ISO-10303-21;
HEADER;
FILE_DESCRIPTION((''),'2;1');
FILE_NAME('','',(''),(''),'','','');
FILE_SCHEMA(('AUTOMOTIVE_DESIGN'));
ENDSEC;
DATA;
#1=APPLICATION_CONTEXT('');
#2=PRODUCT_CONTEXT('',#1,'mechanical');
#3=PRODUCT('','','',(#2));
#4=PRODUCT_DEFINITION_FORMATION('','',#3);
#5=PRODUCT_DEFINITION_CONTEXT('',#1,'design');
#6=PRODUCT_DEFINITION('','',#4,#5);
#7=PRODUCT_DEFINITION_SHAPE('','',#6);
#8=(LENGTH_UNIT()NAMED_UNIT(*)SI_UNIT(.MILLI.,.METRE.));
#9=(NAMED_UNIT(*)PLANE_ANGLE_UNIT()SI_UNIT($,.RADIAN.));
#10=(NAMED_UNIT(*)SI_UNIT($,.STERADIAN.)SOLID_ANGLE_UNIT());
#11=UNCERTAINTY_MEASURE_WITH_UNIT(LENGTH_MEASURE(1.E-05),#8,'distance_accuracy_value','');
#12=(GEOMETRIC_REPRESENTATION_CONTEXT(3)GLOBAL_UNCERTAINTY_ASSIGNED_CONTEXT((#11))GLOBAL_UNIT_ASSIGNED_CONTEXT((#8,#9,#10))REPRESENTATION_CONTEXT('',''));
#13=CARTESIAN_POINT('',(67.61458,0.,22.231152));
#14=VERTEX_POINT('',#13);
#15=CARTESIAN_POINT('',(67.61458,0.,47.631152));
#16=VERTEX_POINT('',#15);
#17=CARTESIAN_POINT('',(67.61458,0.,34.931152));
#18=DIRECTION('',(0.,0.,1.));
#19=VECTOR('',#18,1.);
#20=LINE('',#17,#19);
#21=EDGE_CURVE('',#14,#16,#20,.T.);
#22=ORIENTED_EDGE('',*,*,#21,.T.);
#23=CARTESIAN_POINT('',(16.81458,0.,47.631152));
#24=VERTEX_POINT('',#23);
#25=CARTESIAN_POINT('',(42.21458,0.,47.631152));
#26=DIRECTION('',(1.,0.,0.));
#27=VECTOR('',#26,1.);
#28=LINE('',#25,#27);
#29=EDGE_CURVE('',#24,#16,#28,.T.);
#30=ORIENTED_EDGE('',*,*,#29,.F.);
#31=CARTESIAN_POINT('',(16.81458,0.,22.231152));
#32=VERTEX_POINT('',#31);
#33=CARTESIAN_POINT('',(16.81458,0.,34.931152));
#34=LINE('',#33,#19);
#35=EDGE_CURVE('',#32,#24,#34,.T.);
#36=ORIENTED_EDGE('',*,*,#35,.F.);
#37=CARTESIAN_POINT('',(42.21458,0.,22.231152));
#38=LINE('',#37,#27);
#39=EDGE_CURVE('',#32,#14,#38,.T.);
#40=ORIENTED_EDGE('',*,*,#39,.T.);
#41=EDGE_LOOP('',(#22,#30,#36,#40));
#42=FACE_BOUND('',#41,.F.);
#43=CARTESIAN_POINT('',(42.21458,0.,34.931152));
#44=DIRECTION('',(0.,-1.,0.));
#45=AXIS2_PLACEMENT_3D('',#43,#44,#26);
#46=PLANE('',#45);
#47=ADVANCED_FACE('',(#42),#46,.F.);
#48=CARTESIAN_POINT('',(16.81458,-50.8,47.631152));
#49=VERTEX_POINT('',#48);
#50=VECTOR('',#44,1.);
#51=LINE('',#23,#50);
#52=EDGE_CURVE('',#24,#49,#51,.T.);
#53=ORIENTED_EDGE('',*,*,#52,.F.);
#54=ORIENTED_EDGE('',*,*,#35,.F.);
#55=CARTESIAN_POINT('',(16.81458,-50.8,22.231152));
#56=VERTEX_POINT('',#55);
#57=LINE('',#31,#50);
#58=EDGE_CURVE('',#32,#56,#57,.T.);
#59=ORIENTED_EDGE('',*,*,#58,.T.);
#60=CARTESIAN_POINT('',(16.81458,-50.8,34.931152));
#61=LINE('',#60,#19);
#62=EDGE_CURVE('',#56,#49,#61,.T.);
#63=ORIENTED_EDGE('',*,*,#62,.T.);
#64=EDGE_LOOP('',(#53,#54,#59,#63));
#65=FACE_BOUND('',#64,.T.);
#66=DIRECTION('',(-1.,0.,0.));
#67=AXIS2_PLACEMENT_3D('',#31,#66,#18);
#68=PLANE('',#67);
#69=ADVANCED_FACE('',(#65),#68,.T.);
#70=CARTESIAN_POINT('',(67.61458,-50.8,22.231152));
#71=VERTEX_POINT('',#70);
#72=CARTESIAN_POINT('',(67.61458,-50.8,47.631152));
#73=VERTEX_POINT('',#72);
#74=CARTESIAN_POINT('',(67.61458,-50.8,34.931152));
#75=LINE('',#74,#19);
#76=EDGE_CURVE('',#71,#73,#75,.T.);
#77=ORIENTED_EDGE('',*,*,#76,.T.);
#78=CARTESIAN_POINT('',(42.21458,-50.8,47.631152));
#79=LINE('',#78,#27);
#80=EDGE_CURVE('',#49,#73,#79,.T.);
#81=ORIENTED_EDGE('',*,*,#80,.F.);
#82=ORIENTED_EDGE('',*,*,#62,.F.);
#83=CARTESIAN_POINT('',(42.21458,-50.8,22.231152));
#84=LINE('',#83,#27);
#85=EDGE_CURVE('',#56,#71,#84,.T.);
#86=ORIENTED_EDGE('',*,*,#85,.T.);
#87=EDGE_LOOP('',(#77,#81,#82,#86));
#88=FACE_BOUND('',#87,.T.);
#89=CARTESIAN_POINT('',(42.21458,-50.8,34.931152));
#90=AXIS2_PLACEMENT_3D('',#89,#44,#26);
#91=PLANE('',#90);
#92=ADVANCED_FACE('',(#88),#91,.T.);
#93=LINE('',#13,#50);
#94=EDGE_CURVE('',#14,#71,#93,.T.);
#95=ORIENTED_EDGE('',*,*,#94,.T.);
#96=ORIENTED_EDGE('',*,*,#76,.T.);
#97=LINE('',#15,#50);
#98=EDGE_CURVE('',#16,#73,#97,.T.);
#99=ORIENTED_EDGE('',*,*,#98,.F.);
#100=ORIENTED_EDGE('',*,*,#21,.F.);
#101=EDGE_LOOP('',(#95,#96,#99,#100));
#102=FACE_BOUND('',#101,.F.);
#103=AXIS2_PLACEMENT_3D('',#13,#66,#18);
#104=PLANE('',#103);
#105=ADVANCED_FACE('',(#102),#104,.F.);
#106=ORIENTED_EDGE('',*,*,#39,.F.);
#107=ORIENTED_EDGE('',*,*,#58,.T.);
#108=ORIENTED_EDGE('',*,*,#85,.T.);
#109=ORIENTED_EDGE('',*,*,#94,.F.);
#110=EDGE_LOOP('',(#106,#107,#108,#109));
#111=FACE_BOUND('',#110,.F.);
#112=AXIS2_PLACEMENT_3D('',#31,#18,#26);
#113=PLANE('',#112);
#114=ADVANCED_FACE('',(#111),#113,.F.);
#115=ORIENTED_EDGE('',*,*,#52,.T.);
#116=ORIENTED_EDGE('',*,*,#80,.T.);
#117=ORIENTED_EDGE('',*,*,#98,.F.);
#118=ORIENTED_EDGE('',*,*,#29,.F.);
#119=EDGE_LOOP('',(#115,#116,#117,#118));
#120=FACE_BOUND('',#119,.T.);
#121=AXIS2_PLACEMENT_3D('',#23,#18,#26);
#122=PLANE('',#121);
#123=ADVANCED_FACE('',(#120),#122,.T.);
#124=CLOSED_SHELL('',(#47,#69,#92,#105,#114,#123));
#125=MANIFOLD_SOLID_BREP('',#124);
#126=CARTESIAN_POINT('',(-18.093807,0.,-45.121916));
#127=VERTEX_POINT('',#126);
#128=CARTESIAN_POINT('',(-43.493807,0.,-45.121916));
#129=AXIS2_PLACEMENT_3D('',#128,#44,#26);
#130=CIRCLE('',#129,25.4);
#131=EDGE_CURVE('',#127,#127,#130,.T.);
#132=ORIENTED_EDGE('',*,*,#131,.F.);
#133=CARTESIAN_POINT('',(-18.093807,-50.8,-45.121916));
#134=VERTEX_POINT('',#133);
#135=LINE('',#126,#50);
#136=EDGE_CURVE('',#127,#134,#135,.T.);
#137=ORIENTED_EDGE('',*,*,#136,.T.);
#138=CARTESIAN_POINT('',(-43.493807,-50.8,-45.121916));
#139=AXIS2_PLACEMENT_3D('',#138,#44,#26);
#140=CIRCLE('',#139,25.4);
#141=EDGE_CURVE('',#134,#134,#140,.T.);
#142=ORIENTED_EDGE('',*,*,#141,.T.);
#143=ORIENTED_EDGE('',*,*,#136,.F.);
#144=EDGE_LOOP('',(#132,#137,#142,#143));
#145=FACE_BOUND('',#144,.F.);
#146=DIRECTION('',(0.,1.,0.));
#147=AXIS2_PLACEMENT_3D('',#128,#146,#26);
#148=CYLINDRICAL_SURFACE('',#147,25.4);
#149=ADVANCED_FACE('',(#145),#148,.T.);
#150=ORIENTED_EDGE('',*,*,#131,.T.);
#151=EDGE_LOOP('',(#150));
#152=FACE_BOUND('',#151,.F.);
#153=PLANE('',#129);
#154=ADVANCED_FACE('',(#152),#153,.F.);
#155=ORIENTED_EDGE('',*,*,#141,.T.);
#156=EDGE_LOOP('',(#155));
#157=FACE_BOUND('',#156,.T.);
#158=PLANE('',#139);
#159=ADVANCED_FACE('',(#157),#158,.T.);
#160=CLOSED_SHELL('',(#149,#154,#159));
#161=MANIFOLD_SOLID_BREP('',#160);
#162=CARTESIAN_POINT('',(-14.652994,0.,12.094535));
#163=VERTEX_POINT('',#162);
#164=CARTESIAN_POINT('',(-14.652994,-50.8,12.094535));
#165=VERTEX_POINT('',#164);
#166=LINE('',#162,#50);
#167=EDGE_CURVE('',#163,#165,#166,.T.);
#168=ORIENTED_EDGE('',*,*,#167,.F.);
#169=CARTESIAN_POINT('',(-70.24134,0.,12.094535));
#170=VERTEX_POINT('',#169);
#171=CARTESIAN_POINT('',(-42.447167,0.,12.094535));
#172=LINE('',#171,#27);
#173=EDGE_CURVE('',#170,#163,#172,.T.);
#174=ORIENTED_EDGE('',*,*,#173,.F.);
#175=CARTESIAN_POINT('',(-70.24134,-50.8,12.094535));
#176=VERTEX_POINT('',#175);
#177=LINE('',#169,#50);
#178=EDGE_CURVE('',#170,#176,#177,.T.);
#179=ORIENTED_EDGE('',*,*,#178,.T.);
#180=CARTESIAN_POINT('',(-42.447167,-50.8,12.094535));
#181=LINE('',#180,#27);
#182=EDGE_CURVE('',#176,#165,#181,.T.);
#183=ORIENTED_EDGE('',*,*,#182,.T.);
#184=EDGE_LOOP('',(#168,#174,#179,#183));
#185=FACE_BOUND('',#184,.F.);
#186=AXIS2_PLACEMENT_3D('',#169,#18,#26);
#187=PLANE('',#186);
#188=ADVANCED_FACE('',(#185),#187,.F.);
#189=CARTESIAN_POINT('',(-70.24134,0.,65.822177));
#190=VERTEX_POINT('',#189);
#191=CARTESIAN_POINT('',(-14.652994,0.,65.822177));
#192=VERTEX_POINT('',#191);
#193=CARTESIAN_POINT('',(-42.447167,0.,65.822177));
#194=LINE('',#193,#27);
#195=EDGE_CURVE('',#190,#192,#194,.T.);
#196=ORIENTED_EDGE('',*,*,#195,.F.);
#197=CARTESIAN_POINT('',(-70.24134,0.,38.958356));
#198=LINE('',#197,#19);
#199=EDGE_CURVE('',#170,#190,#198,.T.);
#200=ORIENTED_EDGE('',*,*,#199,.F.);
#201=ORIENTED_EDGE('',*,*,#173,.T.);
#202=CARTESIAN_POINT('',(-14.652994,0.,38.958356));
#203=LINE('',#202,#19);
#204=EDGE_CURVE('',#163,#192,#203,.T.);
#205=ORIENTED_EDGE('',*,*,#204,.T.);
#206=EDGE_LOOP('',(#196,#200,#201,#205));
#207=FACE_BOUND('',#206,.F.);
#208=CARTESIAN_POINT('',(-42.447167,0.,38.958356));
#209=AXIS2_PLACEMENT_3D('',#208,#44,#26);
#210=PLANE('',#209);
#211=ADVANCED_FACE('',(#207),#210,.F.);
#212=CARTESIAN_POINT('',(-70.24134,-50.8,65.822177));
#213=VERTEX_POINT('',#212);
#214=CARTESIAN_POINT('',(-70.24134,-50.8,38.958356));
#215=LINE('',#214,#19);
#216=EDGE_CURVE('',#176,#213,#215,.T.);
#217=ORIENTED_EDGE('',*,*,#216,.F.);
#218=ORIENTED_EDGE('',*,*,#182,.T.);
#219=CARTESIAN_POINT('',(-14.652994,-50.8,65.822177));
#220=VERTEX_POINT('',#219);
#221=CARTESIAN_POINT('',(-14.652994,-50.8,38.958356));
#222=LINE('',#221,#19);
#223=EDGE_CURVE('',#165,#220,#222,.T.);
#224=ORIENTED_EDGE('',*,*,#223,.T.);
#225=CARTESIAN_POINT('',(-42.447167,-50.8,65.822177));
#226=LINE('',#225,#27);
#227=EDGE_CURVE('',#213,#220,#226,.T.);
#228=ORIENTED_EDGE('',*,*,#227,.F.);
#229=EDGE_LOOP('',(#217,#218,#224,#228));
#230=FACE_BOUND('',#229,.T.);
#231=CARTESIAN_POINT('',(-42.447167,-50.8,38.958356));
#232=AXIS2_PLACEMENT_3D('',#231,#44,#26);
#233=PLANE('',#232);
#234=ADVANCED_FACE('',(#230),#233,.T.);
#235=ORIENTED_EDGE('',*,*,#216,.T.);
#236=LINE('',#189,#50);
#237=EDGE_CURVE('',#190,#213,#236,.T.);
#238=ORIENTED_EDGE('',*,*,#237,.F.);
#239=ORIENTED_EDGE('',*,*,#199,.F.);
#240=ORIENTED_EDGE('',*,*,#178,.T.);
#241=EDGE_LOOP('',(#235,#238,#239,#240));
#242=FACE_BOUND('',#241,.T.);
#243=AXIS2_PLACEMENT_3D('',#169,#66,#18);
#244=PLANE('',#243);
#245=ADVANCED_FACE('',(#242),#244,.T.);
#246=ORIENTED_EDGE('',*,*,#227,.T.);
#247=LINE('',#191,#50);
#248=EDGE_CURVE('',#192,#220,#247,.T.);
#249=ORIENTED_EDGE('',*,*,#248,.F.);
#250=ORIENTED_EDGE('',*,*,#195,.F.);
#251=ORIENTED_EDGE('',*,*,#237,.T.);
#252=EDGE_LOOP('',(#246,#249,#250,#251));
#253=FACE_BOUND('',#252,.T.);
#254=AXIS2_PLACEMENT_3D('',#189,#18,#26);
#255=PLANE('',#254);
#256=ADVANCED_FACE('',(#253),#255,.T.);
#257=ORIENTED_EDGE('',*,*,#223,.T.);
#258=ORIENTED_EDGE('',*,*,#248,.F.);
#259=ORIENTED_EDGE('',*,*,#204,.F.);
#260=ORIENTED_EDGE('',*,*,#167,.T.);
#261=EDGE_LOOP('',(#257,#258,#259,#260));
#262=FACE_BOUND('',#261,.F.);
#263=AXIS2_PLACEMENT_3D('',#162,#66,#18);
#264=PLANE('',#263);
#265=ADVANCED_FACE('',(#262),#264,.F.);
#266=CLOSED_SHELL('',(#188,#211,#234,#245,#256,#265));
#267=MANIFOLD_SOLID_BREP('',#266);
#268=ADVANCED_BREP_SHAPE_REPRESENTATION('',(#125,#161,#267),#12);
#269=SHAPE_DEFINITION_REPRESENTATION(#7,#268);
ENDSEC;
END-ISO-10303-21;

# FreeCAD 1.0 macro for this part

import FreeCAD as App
import Part
import Sketcher
Q = App.Units.Quantity

doc = App.newDocument("Part")
body = doc.addObject("PartDesign::Body", "Body")

sketch1 = body.newObject("Sketcher::SketchObject", "Sketch")
sketch1.AttachmentSupport = (doc.getObject("XZ_Plane"), [""])
sketch1.MapMode = "FlatFace"
sketch1.addGeometry([
    Part.LineSegment(App.Vector(-70, 66, 0), App.Vector(-70, 12, 0)),
    Part.LineSegment(App.Vector(-70, 12, 0), App.Vector(-15, 12, 0)),
    Part.LineSegment(App.Vector(-15, 12, 0), App.Vector(-15, 66, 0)),
    Part.LineSegment(App.Vector(-15, 66, 0), App.Vector(-70, 66, 0)),
], False)
sketch1.addConstraint([
    Sketcher.Constraint("Coincident", 0, 2, 1, 1),
    Sketcher.Constraint("Coincident", 1, 2, 2, 1),
    Sketcher.Constraint("Coincident", 2, 2, 3, 1),
    Sketcher.Constraint("Coincident", 3, 2, 0, 1),
    Sketcher.Constraint("Vertical", 0),
    Sketcher.Constraint("Horizontal", 1),
    Sketcher.Constraint("Vertical", 2),
    Sketcher.Constraint("Horizontal", 3),
    Sketcher.Constraint("DistanceY", 0, 2, 0, 1, 53.727642),
    Sketcher.Constraint("DistanceX", 1, 1, 1, 2, 55.588346),
    Sketcher.Constraint("DistanceX", 0, 2, -1, 1, 70.24134),
    Sketcher.Constraint("DistanceY", -1, 1, 0, 2, 12.094535),
])
pad1 = body.newObject("PartDesign::Pad", "Pad")
pad1.Profile = sketch1
pad1.Length = Q("2 in")
body2 = doc.addObject("PartDesign::Body", "Body001")

sketch2 = body2.newObject("Sketcher::SketchObject", "Sketch001")
sketch2.AttachmentSupport = (doc.getObject("XZ_Plane001"), [""])
sketch2.MapMode = "FlatFace"
sketch2.addGeometry([
    Part.LineSegment(App.Vector(17, 48, 0), App.Vector(17, 22, 0)),
    Part.LineSegment(App.Vector(17, 22, 0), App.Vector(68, 22, 0)),
    Part.LineSegment(App.Vector(68, 22, 0), App.Vector(68, 48, 0)),
    Part.LineSegment(App.Vector(68, 48, 0), App.Vector(17, 48, 0)),
], False)
sketch2.addConstraint([
    Sketcher.Constraint("Coincident", 0, 2, 1, 1),
    Sketcher.Constraint("Coincident", 1, 2, 2, 1),
    Sketcher.Constraint("Coincident", 2, 2, 3, 1),
    Sketcher.Constraint("Coincident", 3, 2, 0, 1),
    Sketcher.Constraint("Vertical", 0),
    Sketcher.Constraint("Horizontal", 1),
    Sketcher.Constraint("Vertical", 2),
    Sketcher.Constraint("Horizontal", 3),
    Sketcher.Constraint("DistanceX", 1, 1, 1, 2, Q("2 in")),
    Sketcher.Constraint("DistanceY", 0, 2, 0, 1, Q("1 in")),
    Sketcher.Constraint("DistanceX", -1, 1, 0, 2, 16.81458),
    Sketcher.Constraint("DistanceY", -1, 1, 0, 2, 22.231152),
])
pad2 = body2.newObject("PartDesign::Pad", "Pad001")
pad2.Profile = sketch2
pad2.Length = Q("2 in")
body3 = doc.addObject("PartDesign::Body", "Body002")

sketch3 = body3.newObject("Sketcher::SketchObject", "Sketch002")
sketch3.AttachmentSupport = (doc.getObject("XZ_Plane002"), [""])
sketch3.MapMode = "FlatFace"
sketch3.addGeometry(Part.Circle(App.Vector(-43, -45, 0), App.Vector(0, 0, 1), 25), False)
sketch3.addConstraint([
    Sketcher.Constraint("Diameter", 0, Q("2 in")),
    Sketcher.Constraint("DistanceX", 0, 3, -1, 1, 43.493807),
    Sketcher.Constraint("DistanceY", 0, 3, -1, 1, 45.121916),
])
pad3 = body3.newObject("PartDesign::Pad", "Pad002")
pad3.Profile = sketch3
pad3.Length = Q("2 in")

doc.recompute()
